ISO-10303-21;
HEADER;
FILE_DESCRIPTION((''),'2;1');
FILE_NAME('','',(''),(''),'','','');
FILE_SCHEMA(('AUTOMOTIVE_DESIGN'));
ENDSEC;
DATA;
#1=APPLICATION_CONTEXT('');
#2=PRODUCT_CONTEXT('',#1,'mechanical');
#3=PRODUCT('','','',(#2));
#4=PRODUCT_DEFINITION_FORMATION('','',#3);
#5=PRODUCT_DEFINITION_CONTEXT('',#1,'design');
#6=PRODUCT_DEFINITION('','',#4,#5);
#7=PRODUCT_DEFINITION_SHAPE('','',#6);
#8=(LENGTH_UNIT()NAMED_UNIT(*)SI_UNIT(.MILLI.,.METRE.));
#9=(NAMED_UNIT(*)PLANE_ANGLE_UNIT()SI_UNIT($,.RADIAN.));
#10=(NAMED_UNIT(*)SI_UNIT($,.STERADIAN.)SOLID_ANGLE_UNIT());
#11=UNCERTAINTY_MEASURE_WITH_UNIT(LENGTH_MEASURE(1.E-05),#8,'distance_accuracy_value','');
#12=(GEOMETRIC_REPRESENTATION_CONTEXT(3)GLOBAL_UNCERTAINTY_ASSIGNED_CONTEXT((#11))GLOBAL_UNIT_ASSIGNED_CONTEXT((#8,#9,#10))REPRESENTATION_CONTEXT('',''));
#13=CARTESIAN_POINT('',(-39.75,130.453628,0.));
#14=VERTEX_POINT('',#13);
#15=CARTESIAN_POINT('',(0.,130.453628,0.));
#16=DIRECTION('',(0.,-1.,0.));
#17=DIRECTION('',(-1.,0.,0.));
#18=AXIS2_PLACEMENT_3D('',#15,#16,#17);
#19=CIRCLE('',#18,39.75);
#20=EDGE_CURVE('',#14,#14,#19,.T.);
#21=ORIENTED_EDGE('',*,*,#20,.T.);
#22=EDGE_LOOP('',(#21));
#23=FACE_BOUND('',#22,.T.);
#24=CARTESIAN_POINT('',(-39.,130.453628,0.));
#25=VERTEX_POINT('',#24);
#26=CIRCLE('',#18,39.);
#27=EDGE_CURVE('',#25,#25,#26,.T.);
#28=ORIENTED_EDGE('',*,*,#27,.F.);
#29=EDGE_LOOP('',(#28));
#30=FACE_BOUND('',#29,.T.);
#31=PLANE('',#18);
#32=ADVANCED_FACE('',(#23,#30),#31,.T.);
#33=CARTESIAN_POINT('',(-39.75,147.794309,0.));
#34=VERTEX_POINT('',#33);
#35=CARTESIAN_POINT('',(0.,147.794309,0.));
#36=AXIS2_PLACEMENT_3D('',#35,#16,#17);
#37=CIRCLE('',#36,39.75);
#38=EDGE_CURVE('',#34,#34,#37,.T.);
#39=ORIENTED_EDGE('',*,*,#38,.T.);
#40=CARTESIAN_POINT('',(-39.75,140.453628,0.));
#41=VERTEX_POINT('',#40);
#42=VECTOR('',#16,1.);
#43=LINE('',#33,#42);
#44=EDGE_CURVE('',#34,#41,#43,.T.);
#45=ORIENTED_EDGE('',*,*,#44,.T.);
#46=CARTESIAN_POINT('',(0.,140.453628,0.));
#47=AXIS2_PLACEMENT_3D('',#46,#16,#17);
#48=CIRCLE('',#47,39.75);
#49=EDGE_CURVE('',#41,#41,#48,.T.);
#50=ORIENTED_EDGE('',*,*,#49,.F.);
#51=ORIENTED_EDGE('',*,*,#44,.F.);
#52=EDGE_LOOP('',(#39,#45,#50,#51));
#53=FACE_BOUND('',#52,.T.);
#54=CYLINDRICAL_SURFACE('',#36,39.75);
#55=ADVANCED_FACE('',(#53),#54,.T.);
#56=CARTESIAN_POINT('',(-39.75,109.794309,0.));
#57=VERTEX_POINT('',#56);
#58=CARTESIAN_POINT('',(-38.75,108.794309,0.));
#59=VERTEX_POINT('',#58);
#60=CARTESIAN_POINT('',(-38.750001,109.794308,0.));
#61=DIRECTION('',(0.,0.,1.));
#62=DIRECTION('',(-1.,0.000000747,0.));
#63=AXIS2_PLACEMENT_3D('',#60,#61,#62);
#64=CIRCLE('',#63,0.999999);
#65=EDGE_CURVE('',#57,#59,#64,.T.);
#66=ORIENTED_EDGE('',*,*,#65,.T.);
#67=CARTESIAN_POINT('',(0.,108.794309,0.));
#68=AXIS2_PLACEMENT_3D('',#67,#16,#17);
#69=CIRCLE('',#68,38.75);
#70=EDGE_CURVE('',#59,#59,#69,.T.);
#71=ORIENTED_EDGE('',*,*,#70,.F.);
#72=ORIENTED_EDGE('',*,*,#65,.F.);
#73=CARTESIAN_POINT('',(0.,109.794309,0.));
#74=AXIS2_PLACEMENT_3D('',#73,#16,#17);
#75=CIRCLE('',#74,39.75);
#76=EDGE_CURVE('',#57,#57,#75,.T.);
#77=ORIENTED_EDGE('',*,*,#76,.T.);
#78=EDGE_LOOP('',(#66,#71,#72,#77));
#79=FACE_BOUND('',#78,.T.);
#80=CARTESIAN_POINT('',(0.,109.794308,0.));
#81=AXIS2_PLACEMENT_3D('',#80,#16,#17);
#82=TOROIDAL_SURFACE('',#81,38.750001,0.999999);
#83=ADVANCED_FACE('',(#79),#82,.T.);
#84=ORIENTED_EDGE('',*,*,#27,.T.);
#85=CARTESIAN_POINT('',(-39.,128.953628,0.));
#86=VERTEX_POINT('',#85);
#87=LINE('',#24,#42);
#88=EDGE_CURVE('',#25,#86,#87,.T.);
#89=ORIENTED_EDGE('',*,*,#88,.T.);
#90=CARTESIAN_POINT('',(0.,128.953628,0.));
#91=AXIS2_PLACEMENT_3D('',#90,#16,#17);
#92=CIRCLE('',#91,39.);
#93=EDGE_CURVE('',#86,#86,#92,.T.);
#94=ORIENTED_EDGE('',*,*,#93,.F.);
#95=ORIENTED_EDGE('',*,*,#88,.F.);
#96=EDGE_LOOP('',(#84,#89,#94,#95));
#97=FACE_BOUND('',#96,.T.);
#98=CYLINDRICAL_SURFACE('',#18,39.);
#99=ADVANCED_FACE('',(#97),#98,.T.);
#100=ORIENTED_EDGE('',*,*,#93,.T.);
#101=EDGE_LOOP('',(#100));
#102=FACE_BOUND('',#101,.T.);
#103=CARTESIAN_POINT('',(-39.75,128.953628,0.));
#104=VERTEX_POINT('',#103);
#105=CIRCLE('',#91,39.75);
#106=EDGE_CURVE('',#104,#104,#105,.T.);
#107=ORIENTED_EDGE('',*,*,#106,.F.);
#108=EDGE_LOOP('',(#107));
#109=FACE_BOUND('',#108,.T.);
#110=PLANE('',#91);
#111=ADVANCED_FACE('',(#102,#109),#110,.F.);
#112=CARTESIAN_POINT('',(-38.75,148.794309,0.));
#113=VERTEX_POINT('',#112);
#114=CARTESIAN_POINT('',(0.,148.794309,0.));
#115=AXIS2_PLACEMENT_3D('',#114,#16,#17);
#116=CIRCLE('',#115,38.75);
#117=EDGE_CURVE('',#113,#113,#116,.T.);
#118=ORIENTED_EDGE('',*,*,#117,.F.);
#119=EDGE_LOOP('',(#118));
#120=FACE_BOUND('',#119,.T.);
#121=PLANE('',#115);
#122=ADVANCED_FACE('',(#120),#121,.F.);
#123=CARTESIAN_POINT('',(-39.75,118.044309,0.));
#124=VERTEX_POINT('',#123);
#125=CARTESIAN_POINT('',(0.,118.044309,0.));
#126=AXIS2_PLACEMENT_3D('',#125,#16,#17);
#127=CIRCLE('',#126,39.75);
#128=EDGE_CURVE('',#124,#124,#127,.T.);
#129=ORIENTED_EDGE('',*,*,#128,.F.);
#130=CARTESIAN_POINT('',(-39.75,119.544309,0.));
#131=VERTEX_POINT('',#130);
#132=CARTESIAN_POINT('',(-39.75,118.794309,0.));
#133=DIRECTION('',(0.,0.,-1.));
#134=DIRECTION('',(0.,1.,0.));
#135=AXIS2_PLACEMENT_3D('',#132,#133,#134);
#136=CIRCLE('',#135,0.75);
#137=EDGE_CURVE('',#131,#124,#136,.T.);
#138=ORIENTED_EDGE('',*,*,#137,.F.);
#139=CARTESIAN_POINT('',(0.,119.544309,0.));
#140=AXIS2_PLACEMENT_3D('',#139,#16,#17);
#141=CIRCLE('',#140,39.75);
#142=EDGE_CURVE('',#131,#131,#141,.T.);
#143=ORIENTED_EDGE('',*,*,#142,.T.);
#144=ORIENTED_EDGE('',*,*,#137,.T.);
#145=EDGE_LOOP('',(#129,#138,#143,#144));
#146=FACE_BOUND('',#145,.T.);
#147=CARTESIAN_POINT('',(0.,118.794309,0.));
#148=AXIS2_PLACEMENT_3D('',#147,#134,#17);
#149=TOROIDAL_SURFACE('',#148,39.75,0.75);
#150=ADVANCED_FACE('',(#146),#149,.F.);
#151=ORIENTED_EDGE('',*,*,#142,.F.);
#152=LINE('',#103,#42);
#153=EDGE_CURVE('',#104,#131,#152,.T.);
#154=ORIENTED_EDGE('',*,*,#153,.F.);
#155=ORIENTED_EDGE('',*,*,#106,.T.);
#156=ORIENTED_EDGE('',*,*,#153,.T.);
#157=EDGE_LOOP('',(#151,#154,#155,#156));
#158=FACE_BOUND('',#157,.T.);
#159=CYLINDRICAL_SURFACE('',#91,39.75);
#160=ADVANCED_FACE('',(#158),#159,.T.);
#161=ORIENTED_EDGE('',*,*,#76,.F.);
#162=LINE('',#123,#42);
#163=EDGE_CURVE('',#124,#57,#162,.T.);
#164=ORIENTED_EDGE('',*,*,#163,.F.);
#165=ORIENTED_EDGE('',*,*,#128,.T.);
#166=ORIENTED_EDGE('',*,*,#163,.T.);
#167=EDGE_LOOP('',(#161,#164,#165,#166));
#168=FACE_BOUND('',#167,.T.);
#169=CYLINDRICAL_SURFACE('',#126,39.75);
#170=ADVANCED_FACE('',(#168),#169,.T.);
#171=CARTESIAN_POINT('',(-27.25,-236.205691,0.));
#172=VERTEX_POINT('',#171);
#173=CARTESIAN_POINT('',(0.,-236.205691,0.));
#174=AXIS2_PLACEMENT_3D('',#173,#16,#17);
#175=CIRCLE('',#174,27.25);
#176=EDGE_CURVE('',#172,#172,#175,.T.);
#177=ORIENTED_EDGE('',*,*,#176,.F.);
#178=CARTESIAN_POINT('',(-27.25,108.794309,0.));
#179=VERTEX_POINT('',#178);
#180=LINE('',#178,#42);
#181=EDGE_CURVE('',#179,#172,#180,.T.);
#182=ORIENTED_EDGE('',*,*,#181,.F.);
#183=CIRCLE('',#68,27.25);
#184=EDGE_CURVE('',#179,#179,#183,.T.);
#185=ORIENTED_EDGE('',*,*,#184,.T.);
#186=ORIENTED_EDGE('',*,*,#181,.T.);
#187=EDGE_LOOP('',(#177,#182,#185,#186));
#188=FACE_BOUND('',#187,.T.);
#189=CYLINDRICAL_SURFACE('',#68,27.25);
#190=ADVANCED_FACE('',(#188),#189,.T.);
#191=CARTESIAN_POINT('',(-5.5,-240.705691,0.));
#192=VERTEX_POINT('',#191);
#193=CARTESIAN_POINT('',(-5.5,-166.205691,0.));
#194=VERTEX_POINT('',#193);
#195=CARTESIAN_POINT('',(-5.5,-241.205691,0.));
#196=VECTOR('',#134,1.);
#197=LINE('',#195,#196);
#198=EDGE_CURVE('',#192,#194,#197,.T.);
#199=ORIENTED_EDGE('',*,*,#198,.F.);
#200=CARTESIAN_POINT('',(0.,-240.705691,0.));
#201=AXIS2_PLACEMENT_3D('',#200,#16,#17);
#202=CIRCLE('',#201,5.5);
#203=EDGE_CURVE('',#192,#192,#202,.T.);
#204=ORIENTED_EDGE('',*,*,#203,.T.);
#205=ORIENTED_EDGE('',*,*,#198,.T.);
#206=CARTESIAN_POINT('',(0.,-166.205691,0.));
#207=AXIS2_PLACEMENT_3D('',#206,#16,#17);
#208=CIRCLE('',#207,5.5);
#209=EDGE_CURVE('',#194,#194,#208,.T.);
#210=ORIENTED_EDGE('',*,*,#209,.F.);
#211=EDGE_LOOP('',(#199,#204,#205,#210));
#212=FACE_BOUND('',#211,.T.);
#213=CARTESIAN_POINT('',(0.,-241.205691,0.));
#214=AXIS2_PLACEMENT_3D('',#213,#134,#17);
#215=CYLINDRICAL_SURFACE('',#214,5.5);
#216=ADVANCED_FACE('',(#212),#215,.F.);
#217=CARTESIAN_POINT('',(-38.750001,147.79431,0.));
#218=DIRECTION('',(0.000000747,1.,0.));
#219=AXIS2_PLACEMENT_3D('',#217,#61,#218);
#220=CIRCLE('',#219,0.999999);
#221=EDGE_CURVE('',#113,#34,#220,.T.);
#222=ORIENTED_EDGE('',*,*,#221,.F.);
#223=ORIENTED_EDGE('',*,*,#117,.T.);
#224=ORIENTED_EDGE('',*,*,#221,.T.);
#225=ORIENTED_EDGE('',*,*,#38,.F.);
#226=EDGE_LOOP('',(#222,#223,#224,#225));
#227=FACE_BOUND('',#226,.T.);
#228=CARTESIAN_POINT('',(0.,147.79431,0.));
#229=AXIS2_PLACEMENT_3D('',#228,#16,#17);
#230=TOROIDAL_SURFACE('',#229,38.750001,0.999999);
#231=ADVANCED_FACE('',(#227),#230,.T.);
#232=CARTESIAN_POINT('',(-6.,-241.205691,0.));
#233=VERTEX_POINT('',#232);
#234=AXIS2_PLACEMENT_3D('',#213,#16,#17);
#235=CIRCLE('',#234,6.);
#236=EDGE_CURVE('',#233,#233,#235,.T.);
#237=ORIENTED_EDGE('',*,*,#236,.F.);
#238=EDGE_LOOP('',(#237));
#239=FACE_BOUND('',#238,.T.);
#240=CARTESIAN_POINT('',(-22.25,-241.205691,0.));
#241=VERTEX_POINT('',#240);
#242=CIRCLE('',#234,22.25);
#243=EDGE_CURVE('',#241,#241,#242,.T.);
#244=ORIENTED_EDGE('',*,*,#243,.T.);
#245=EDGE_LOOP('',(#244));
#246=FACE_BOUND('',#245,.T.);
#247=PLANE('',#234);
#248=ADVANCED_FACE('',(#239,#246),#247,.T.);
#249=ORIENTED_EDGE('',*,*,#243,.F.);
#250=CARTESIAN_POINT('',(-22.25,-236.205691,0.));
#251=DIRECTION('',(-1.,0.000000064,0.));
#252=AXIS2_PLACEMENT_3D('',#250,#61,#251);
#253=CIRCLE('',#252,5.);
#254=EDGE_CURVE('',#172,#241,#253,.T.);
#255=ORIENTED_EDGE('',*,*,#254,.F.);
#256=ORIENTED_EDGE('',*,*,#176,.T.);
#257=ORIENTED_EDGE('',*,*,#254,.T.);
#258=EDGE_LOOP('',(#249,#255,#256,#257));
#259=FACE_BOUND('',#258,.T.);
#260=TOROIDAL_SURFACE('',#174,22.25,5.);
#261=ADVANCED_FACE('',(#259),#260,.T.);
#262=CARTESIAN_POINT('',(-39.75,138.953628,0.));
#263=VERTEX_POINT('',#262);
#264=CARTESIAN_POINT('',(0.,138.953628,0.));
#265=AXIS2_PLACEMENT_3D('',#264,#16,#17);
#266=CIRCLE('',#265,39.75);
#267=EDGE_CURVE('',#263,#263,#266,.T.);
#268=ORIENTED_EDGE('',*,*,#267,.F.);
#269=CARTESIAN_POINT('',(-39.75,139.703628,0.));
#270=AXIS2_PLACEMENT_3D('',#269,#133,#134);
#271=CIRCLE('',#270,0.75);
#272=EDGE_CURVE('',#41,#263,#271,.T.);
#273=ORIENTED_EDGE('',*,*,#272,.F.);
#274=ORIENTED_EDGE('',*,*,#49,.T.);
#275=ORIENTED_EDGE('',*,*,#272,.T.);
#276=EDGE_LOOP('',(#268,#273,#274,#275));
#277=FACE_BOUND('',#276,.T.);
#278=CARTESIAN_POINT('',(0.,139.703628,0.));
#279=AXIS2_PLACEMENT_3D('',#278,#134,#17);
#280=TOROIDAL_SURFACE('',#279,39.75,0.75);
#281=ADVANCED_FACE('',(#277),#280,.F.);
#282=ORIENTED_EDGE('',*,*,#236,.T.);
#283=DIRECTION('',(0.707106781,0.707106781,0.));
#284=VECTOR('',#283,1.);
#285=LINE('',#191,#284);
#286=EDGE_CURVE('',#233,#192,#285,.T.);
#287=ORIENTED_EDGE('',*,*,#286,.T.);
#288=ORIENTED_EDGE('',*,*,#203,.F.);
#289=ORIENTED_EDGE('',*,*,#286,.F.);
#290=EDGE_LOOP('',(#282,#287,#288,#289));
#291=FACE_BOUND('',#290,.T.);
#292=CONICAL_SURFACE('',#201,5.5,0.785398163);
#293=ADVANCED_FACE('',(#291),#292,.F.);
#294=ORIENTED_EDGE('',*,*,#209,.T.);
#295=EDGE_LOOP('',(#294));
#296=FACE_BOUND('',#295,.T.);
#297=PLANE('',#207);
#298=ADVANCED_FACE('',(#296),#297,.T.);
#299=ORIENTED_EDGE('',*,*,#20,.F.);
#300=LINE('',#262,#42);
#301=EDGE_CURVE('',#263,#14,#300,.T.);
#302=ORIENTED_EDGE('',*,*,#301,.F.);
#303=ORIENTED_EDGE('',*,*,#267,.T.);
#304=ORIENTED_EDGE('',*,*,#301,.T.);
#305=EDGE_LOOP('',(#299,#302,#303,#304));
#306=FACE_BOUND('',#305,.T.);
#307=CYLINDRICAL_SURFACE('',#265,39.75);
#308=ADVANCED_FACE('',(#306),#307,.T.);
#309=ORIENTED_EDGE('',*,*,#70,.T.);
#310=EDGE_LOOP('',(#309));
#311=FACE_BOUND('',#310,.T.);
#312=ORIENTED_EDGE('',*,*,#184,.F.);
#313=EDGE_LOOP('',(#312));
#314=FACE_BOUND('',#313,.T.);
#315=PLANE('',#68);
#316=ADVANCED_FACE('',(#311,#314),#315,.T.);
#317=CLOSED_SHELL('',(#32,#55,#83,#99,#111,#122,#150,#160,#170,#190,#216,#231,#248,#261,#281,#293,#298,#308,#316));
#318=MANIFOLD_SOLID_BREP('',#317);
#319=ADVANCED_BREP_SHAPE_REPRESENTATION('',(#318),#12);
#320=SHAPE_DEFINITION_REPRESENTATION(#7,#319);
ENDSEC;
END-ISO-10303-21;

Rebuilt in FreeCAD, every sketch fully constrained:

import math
import FreeCAD as App
import Part
import Sketcher
from FreeCAD import Vector
Q = App.Units.Quantity


def edges_at(feature, points):
    """Names of the edges that pass closest to the given points."""
    edges = feature.Shape.Edges
    near = lambda p: min(range(len(edges)), key=lambda i: edges[i].distToShape(Part.Vertex(*p))[0])
    return sorted({f"Edge{near(p) + 1}" for p in points})

doc = App.newDocument("Part")
body = doc.addObject("PartDesign::Body", "Body")

# Sketch on XY plane
sketch1 = body.newObject("Sketcher::SketchObject", "Sketch")
sketch1.AttachmentSupport = (doc.getObject("XY_Plane"), [""])
sketch1.MapMode = "FlatFace"
sketch1.addGeometry([
    Part.LineSegment(Vector(0, -166.2, 0), Vector(0, 148.8, 0)),  # 0
    Part.LineSegment(Vector(0, 148.8, 0), Vector(-38.8, 148.8, 0)),  # 1
    Part.ArcOfCircle(Part.Circle(Vector(-38.8, 147.8, 0), Vector(0, 0, 1), 1), math.radians(90), math.radians(180)),  # 2
    Part.LineSegment(Vector(-39.8, 147.8, 0), Vector(-39.8, 140.5, 0)),  # 3
    Part.ArcOfCircle(Part.Circle(Vector(-39.8, 139.7, 0), Vector(0, 0, 1), 0.8), math.radians(-90), math.radians(90)),  # 4
    Part.LineSegment(Vector(-39.8, 139, 0), Vector(-39.8, 130.5, 0)),  # 5
    Part.LineSegment(Vector(-39.8, 130.5, 0), Vector(-39, 130.5, 0)),  # 6
    Part.LineSegment(Vector(-39, 130.5, 0), Vector(-39, 129, 0)),  # 7
    Part.LineSegment(Vector(-39, 129, 0), Vector(-39.8, 129, 0)),  # 8
    Part.LineSegment(Vector(-39.8, 129, 0), Vector(-39.8, 119.5, 0)),  # 9
    Part.ArcOfCircle(Part.Circle(Vector(-39.8, 118.8, 0), Vector(0, 0, 1), 0.8), math.radians(-90), math.radians(90)),  # 10
    Part.LineSegment(Vector(-39.8, 118, 0), Vector(-39.8, 109.8, 0)),  # 11
    Part.ArcOfCircle(Part.Circle(Vector(-38.8, 109.8, 0), Vector(0, 0, 1), 1), math.radians(180), math.radians(270)),  # 12
    Part.LineSegment(Vector(-38.8, 108.8, 0), Vector(-27.2, 108.8, 0)),  # 13
    Part.LineSegment(Vector(-27.2, 108.8, 0), Vector(-27.2, -236.2, 0)),  # 14
    Part.ArcOfCircle(Part.Circle(Vector(-22.3, -236.2, 0), Vector(0, 0, 1), 5), math.radians(180), math.radians(270)),  # 15
    Part.LineSegment(Vector(-22.2, -241.2, 0), Vector(-5.5, -241.2, 0)),  # 16
    Part.LineSegment(Vector(-5.5, -241.2, 0), Vector(-5.5, -166.2, 0)),  # 17
    Part.LineSegment(Vector(-5.5, -166.2, 0), Vector(0, -166.2, 0)),  # 18
], False)
sketch1.addConstraint([
    Sketcher.Constraint("Coincident", 0, 2, 1, 1),
    Sketcher.Constraint("Tangent", 1, 2, 2, 1),
    Sketcher.Constraint("Tangent", 2, 2, 3, 1),
    Sketcher.Constraint("Coincident", 3, 2, 4, 2),
    Sketcher.Constraint("Coincident", 4, 1, 5, 1),
    Sketcher.Constraint("Coincident", 5, 2, 6, 1),
    Sketcher.Constraint("Coincident", 6, 2, 7, 1),
    Sketcher.Constraint("Coincident", 7, 2, 8, 1),
    Sketcher.Constraint("Coincident", 8, 2, 9, 1),
    Sketcher.Constraint("Coincident", 9, 2, 10, 2),
    Sketcher.Constraint("Coincident", 10, 1, 11, 1),
    Sketcher.Constraint("Tangent", 11, 2, 12, 1),
    Sketcher.Constraint("Tangent", 12, 2, 13, 1),
    Sketcher.Constraint("Coincident", 13, 2, 14, 1),
    Sketcher.Constraint("Tangent", 14, 2, 15, 1),
    Sketcher.Constraint("Tangent", 15, 2, 16, 1),
    Sketcher.Constraint("Coincident", 16, 2, 17, 1),
    Sketcher.Constraint("Coincident", 17, 2, 18, 1),
    Sketcher.Constraint("Coincident", 18, 2, 0, 1),
    Sketcher.Constraint("Vertical", 0),
    Sketcher.Constraint("Horizontal", 1),
    Sketcher.Constraint("Vertical", 3),
    Sketcher.Constraint("Vertical", 5),
    Sketcher.Constraint("Horizontal", 6),
    Sketcher.Constraint("Vertical", 7),
    Sketcher.Constraint("Horizontal", 8),
    Sketcher.Constraint("Vertical", 9),
    Sketcher.Constraint("Vertical", 11),
    Sketcher.Constraint("Horizontal", 13),
    Sketcher.Constraint("Vertical", 14),
    Sketcher.Constraint("Horizontal", 16),
    Sketcher.Constraint("Vertical", 17),
    Sketcher.Constraint("Horizontal", 18),
    Sketcher.Constraint("Equal", 4, 10),
    Sketcher.Constraint("Equal", 2, 12),
    Sketcher.Constraint("PointOnObject", 0, 2, -2),
    Sketcher.Constraint("Vertical", 4, 3, 10, 3),
    Sketcher.Constraint("Vertical", 2, 3, 12, 3),
    Sketcher.Constraint("Vertical", 10, 3, 2, 2),
    Sketcher.Constraint("Vertical", 3, 2, 4, 1),
    Sketcher.Constraint("Vertical", 5, 2, 8, 2),
    Sketcher.Constraint("Radius", 2, Q("0.999999 mm")),
    Sketcher.Constraint("Radius", 15, Q("5 mm")),
    Sketcher.Constraint("DistanceY", 0, 1, 0, 2, Q("315 mm")),
    Sketcher.Constraint("DistanceY", 14, 2, 14, 1, Q("345 mm")),
    Sketcher.Constraint("DistanceY", 17, 1, 17, 2, Q("75 mm")),
    Sketcher.Constraint("Radius", 4, Q("0.75 mm")),
    Sketcher.Constraint("DistanceX", 13, 1, 13, 2, Q("11.5 mm")),
    Sketcher.Constraint("DistanceX", 18, 1, 18, 2, Q("5.5 mm")),
    Sketcher.Constraint("DistanceY", 5, 2, 5, 1, Q("8.5 mm")),
    Sketcher.Constraint("DistanceY", 7, 2, 7, 1, Q("1.5 mm")),
    Sketcher.Constraint("DistanceX", 6, 2, -1, 1, Q("39 mm")),
    Sketcher.Constraint("DistanceY", 10, 3, 2, 3, Q("29.000001 mm")),
    Sketcher.Constraint("DistanceX", 1, 2, 1, 1, Q("38.75 mm")),
    Sketcher.Constraint("DistanceY", 3, 2, 3, 1, Q("7.340681 mm")),
    Sketcher.Constraint("DistanceY", -1, 1, 2, 3, Q("147.79431 mm")),
])
revolution = body.newObject("PartDesign::Revolution", "Revolution")
revolution.Profile = sketch1
revolution.ReferenceAxis = (sketch1, ["V_Axis"])
revolution.Angle = 360
doc.recompute()

chamfer = body.newObject("PartDesign::Chamfer", "Chamfer")
chamfer.Base = (revolution, edges_at(revolution, [(22.25, -241.206, 0), (5.5, -241.206, 0)]))
chamfer.Size = 0.5

doc.recompute()
